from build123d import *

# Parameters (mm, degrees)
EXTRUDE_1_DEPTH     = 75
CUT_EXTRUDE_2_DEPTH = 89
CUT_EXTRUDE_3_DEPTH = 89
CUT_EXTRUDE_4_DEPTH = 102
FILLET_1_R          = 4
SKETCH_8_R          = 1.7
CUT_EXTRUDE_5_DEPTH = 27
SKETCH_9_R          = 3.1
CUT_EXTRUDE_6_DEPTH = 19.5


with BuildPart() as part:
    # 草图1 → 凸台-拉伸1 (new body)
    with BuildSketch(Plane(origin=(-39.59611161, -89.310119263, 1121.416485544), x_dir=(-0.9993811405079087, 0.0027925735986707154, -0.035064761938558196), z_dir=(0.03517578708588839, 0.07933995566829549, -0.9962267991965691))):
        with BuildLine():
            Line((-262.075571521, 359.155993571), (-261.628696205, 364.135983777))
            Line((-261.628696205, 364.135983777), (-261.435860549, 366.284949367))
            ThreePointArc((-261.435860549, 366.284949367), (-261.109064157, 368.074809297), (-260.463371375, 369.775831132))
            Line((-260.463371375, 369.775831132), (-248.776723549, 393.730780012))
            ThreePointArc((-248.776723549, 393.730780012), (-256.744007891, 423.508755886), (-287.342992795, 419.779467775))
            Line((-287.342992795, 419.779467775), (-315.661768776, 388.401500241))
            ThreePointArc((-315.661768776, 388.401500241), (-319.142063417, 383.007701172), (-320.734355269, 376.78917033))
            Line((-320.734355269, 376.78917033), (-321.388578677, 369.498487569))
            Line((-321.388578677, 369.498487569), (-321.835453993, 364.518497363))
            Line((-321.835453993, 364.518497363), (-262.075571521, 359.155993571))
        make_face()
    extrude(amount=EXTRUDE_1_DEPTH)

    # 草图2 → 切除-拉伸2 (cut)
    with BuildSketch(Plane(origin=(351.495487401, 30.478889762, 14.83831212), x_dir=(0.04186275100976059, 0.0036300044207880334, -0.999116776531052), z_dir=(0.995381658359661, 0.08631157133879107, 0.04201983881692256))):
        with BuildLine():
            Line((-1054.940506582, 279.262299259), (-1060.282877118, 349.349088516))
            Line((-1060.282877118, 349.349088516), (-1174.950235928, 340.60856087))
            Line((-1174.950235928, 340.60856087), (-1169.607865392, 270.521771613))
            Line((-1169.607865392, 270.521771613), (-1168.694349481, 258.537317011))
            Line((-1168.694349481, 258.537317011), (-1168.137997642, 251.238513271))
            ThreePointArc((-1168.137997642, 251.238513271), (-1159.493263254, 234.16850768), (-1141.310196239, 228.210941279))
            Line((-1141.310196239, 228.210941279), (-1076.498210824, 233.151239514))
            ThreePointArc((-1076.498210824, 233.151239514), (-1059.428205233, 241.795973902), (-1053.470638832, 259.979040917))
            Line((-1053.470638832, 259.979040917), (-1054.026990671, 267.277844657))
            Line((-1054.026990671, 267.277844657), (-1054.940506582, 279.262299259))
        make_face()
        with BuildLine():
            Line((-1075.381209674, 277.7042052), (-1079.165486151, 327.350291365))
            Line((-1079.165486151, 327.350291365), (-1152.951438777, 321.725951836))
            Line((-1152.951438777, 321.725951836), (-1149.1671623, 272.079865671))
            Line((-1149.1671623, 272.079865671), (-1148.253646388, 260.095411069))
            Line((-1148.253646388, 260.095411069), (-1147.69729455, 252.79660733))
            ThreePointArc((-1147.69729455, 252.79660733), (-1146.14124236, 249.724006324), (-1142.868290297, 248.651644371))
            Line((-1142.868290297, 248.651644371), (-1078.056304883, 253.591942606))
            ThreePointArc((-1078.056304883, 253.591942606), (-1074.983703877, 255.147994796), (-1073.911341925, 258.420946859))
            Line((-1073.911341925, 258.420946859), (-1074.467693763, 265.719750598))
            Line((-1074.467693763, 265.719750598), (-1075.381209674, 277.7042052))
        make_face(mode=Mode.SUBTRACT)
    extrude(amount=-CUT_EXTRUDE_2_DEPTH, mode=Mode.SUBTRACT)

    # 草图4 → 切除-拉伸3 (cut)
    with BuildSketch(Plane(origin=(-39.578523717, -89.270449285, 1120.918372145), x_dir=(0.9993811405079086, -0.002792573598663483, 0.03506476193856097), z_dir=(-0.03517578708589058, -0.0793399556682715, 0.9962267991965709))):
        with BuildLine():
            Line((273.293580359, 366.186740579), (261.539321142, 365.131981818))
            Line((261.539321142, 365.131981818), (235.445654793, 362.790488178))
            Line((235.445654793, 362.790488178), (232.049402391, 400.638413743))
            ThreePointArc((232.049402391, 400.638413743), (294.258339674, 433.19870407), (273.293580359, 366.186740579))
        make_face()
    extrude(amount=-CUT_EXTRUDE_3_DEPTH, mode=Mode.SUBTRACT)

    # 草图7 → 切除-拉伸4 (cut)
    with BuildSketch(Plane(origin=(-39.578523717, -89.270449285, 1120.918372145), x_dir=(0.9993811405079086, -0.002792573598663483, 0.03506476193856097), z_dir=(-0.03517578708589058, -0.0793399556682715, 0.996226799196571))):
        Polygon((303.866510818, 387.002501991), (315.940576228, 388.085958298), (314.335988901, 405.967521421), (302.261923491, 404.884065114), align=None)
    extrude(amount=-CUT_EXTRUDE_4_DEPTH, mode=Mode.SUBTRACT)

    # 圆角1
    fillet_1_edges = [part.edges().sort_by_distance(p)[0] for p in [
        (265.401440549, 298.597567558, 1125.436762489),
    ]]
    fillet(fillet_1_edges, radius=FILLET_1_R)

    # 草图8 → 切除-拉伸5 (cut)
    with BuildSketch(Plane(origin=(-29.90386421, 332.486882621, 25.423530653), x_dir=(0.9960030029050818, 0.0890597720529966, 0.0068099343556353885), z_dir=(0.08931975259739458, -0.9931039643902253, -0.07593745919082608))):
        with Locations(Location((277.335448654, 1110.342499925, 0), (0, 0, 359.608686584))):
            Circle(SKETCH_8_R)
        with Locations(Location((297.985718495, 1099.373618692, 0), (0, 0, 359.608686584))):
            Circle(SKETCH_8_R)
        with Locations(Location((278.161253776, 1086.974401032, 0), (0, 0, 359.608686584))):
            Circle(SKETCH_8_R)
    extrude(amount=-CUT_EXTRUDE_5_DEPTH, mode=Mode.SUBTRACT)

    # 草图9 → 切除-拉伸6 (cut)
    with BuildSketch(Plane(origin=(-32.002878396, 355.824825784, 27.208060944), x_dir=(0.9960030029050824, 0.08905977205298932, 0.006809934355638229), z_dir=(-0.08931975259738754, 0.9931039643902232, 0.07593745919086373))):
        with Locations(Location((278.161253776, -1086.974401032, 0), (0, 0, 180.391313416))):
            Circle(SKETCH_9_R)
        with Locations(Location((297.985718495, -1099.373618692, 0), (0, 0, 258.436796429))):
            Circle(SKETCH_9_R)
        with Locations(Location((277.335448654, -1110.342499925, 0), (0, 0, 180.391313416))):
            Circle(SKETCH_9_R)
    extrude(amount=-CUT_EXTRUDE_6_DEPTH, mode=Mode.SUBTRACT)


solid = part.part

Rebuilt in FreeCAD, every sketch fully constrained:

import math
import FreeCAD as App
import Part
import Sketcher


def edges_at(feature, points):
    """Names of the edges that pass closest to the given points."""
    edges = feature.Shape.Edges
    near = lambda p: min(range(len(edges)), key=lambda i: edges[i].distToShape(Part.Vertex(*p))[0])
    return sorted({f"Edge{near(p) + 1}" for p in points})


def add_polygon(sketch, points):
    """Adds a closed chain of lines whose ends are joined by coincident constraints."""
    first, n = sketch.GeometryCount, len(points)
    for a, b in zip(points, points[1:] + points[:1]):
        sketch.addGeometry(Part.LineSegment(App.Vector(*a, 0), App.Vector(*b, 0)), False)
    for i in range(n):
        sketch.addConstraint(Sketcher.Constraint("Coincident", first + i, 2, first + (i + 1) % n, 1))

doc = App.newDocument("Part")
body = doc.addObject("PartDesign::Body", "Body")

# Sketch on an angled plane
sketch1 = body.newObject("Sketcher::SketchObject", "Sketch")
sketch1.Placement = App.Placement(App.Vector(-39.596112, -89.310119, 1121.416486), App.Rotation(App.Vector(-0.999381141, 0.002792574, -0.035064762), App.Vector(0, 0.996843706, 0.079389087), App.Vector(0.035175787, 0.079339956, -0.996226799), "ZXY"))
sketch1.addGeometry([
    Part.LineSegment(App.Vector(-262.1, 359.2, 0), App.Vector(-261.6, 364.1, 0)),  # 0
    Part.LineSegment(App.Vector(-261.6, 364.1, 0), App.Vector(-261.4, 366.3, 0)),  # 1
    Part.ArcOfCircle(Part.Circle(App.Vector(-251.5, 365.4, 0), App.Vector(0, 0, 1), 10), math.radians(154), math.radians(175)),  # 2
    Part.LineSegment(App.Vector(-260.5, 369.8, 0), App.Vector(-248.8, 393.7, 0)),  # 3
    Part.ArcOfCircle(Part.Circle(App.Vector(-269.9, 404, 0), App.Vector(0, 0, 1), 23.5), math.radians(-26), math.radians(138)),  # 4
    Part.LineSegment(App.Vector(-287.3, 419.8, 0), App.Vector(-315.7, 388.4, 0)),  # 5
    Part.ArcOfCircle(Part.Circle(App.Vector(-300.8, 375, 0), App.Vector(0, 0, 1), 20), math.radians(138), math.radians(175)),  # 6
    Part.LineSegment(App.Vector(-320.7, 376.8, 0), App.Vector(-321.4, 369.5, 0)),  # 7
    Part.LineSegment(App.Vector(-321.4, 369.5, 0), App.Vector(-321.8, 364.5, 0)),  # 8
    Part.LineSegment(App.Vector(-321.8, 364.5, 0), App.Vector(-262.1, 359.2, 0)),  # 9
], False)
sketch1.addConstraint([
    Sketcher.Constraint("Coincident", 0, 2, 1, 1),
    Sketcher.Constraint("Tangent", 1, 2, 2, 2),
    Sketcher.Constraint("Tangent", 2, 1, 3, 1),
    Sketcher.Constraint("Tangent", 3, 2, 4, 1),
    Sketcher.Constraint("Tangent", 4, 2, 5, 1),
    Sketcher.Constraint("Tangent", 5, 2, 6, 1),
    Sketcher.Constraint("Tangent", 6, 2, 7, 1),
    Sketcher.Constraint("Coincident", 7, 2, 8, 1),
    Sketcher.Constraint("Coincident", 8, 2, 9, 1),
    Sketcher.Constraint("Coincident", 9, 2, 0, 1),
    Sketcher.Constraint("Parallel", 0, 1),
    Sketcher.Constraint("Parallel", 1, 7),
    Sketcher.Constraint("Parallel", 7, 8),
    Sketcher.Constraint("Perpendicular", 8, 9),
    Sketcher.Constraint("Equal", 0, 8),
    Sketcher.Constraint("Radius", 2, 10.0),
    Sketcher.Constraint("Radius", 6, 20.0),
    Sketcher.Constraint("Radius", 4, 23.5),
    Sketcher.Constraint("Distance", 0, 5.0),
    Sketcher.Constraint("Distance", 9, 60.0),
    Sketcher.Constraint("Distance", 1, 2.1576),
    Sketcher.Constraint("DistanceY", -1, 1, 2, 3, 365.391199),
    Sketcher.Constraint("DistanceY", -1, 1, 5, 2, 388.4015),
    Sketcher.Constraint("DistanceX", 6, 3, 0, 2, 39.185698),
    Sketcher.Constraint("DistanceY", 4, 3, 4, 2, 15.744802),
    Sketcher.Constraint("DistanceX", 6, 3, 4, 2, 13.471402),
    Sketcher.Constraint("DistanceX", 2, 3, -1, 1, 251.47588),
])
pad1 = body.newObject("PartDesign::Pad", "Pad")
pad1.Profile = sketch1
pad1.Length = 75

# Sketch on an angled plane
sketch2 = body.newObject("Sketcher::SketchObject", "Sketch001")
sketch2.Placement = App.Placement(App.Vector(351.495487, 30.47889, 14.838312), App.Rotation(App.Vector(0.041862751, 0.003630004, -0.999116777), App.Vector(-0.086387871, 0.99626158, 0), App.Vector(0.995381658, 0.086311571, 0.042019839), "ZXY"))
sketch2.addGeometry([
    Part.LineSegment(App.Vector(-1054.9, 279.3, 0), App.Vector(-1060.3, 349.3, 0)),  # 0
    Part.LineSegment(App.Vector(-1060.3, 349.3, 0), App.Vector(-1175, 340.6, 0)),  # 1
    Part.LineSegment(App.Vector(-1175, 340.6, 0), App.Vector(-1169.6, 270.5, 0)),  # 2
    Part.LineSegment(App.Vector(-1169.6, 270.5, 0), App.Vector(-1168.7, 258.5, 0)),  # 3
    Part.LineSegment(App.Vector(-1168.7, 258.5, 0), App.Vector(-1168.1, 251.2, 0)),  # 4
    Part.ArcOfCircle(Part.Circle(App.Vector(-1143.2, 253.1, 0), App.Vector(0, 0, 1), 25), math.radians(-176), math.radians(-86)),  # 5
    Part.LineSegment(App.Vector(-1141.3, 228.2, 0), App.Vector(-1076.5, 233.2, 0)),  # 6
    Part.ArcOfCircle(Part.Circle(App.Vector(-1078.4, 258.1, 0), App.Vector(0, 0, 1), 25), math.radians(-86), math.radians(4)),  # 7
    Part.LineSegment(App.Vector(-1053.5, 260, 0), App.Vector(-1054, 267.3, 0)),  # 8
    Part.LineSegment(App.Vector(-1054, 267.3, 0), App.Vector(-1054.9, 279.3, 0)),  # 9
    Part.LineSegment(App.Vector(-1079.2, 327.4, 0), App.Vector(-1075.4, 277.7, 0)),  # 10
    Part.LineSegment(App.Vector(-1075.4, 277.7, 0), App.Vector(-1074.5, 265.7, 0)),  # 11
    Part.LineSegment(App.Vector(-1074.5, 265.7, 0), App.Vector(-1073.9, 258.4, 0)),  # 12
    Part.ArcOfCircle(Part.Circle(App.Vector(-1078.4, 258.1, 0), App.Vector(0, 0, 1), 4.5), math.radians(-86), math.radians(4)),  # 13
    Part.LineSegment(App.Vector(-1078.1, 253.6, 0), App.Vector(-1142.9, 248.7, 0)),  # 14
    Part.ArcOfCircle(Part.Circle(App.Vector(-1143.2, 253.1, 0), App.Vector(0, 0, 1), 4.5), math.radians(-176), math.radians(-86)),  # 15
    Part.LineSegment(App.Vector(-1147.7, 252.8, 0), App.Vector(-1148.3, 260.1, 0)),  # 16
    Part.LineSegment(App.Vector(-1148.3, 260.1, 0), App.Vector(-1149.2, 272.1, 0)),  # 17
    Part.LineSegment(App.Vector(-1149.2, 272.1, 0), App.Vector(-1153, 321.7, 0)),  # 18
    Part.LineSegment(App.Vector(-1153, 321.7, 0), App.Vector(-1079.2, 327.4, 0)),  # 19
], False)
sketch2.addConstraint([
    Sketcher.Constraint("Coincident", 0, 2, 1, 1),
    Sketcher.Constraint("Coincident", 1, 2, 2, 1),
    Sketcher.Constraint("Coincident", 2, 2, 3, 1),
    Sketcher.Constraint("Coincident", 3, 2, 4, 1),
    Sketcher.Constraint("Tangent", 4, 2, 5, 1),
    Sketcher.Constraint("Tangent", 5, 2, 6, 1),
    Sketcher.Constraint("Tangent", 6, 2, 7, 1),
    Sketcher.Constraint("Tangent", 7, 2, 8, 1),
    Sketcher.Constraint("Coincident", 8, 2, 9, 1),
    Sketcher.Constraint("Coincident", 9, 2, 0, 1),
    Sketcher.Constraint("Coincident", 10, 2, 11, 1),
    Sketcher.Constraint("Coincident", 11, 2, 12, 1),
    Sketcher.Constraint("Tangent", 12, 2, 13, 2),
    Sketcher.Constraint("Tangent", 13, 1, 14, 1),
    Sketcher.Constraint("Tangent", 14, 2, 15, 2),
    Sketcher.Constraint("Tangent", 15, 1, 16, 1),
    Sketcher.Constraint("Coincident", 16, 2, 17, 1),
    Sketcher.Constraint("Coincident", 17, 2, 18, 1),
    Sketcher.Constraint("Coincident", 18, 2, 19, 1),
    Sketcher.Constraint("Coincident", 19, 2, 10, 1),
    Sketcher.Constraint("Coincident", 13, 3, 7, 3),
    Sketcher.Constraint("Coincident", 15, 3, 5, 3),
    Sketcher.Constraint("Equal", 5, 7),
    Sketcher.Constraint("Equal", 13, 15),
    Sketcher.Constraint("Perpendicular", 0, 1),
    Sketcher.Constraint("Perpendicular", 1, 2),
    Sketcher.Constraint("Parallel", 2, 3),
    Sketcher.Constraint("Parallel", 3, 4),
    Sketcher.Constraint("Perpendicular", 4, 6),
    Sketcher.Constraint("Perpendicular", 6, 8),
    Sketcher.Constraint("Parallel", 8, 9),
    Sketcher.Constraint("Parallel", 9, 10),
    Sketcher.Constraint("Parallel", 10, 11),
    Sketcher.Constraint("Parallel", 11, 12),
    Sketcher.Constraint("Perpendicular", 14, 16),
    Sketcher.Constraint("Parallel", 16, 17),
    Sketcher.Constraint("Parallel", 17, 18),
    Sketcher.Constraint("Perpendicular", 18, 19),
    Sketcher.Constraint("Equal", 0, 2),
    Sketcher.Constraint("Equal", 4, 8),
    Sketcher.Constraint("Equal", 9, 11),
    Sketcher.Constraint("Equal", 8, 12),
    Sketcher.Constraint("Equal", 12, 16),
    Sketcher.Constraint("Equal", 11, 17),
    Sketcher.Constraint("Radius", 5, 25.0),
    Sketcher.Constraint("Radius", 13, 4.5),
    Sketcher.Constraint("Distance", 1, 115.0),
    Sketcher.Constraint("DistanceX", 4, 2, -1, 1, 1168.137999),
    Sketcher.Constraint("DistanceY", -1, 1, 9, 2, 279.262299),
    Sketcher.Constraint("DistanceY", 5, 3, 7, 3, 4.940298),
    Sketcher.Constraint("Distance", 3, 12.019221),
    Sketcher.Constraint("DistanceY", -1, 1, 5, 3, 253.138628),
    Sketcher.Constraint("DistanceX", 0, 2, -1, 1, 1060.282878),
    Sketcher.Constraint("DistanceX", 18, 2, -1, 1, 1152.95144),
])
pocket1 = body.newObject("PartDesign::Pocket", "Pocket")
pocket1.Profile = sketch2
pocket1.Length = 89

# Sketch on an angled plane
sketch3 = body.newObject("Sketcher::SketchObject", "Sketch002")
sketch3.Placement = App.Placement(App.Vector(-39.578524, -89.270449, 1120.918372), App.Rotation(App.Vector(0.999381141, -0.002792574, 0.035064762), App.Vector(0, 0.996843706, 0.079389087), App.Vector(-0.035175787, -0.079339956, 0.996226799), "ZXY"))
sketch3.addGeometry([
    Part.LineSegment(App.Vector(262, 365, 0), App.Vector(273, 366, 0)),
    Part.ArcOfCircle(Part.Circle(App.Vector(270, 404, 0), App.Vector(0, 0, 1), 38), math.radians(-85), math.radians(185)),
    Part.LineSegment(App.Vector(232, 401, 0), App.Vector(235, 363, 0)),
    Part.LineSegment(App.Vector(235, 363, 0), App.Vector(262, 365, 0)),
], False)
sketch3.addConstraint([
    Sketcher.Constraint("Tangent", 0, 2, 1, 1),
    Sketcher.Constraint("Tangent", 1, 2, 2, 1),
    Sketcher.Constraint("Coincident", 2, 2, 3, 1),
    Sketcher.Constraint("Coincident", 3, 2, 0, 1),
    Sketcher.Constraint("Perpendicular", 0, 2),
    Sketcher.Constraint("Perpendicular", 2, 3),
    Sketcher.Constraint("Radius", 1, 38.0),
    Sketcher.Constraint("Distance", 0, 11.801488),
    Sketcher.Constraint("DistanceX", -1, 1, 1, 3, 269.897328),
    Sketcher.Constraint("DistanceX", -1, 1, 0, 2, 273.293581),
    Sketcher.Constraint("DistanceY", -1, 1, 0, 2, 366.186741),
])
pocket2 = body.newObject("PartDesign::Pocket", "Pocket001")
pocket2.Profile = sketch3
pocket2.Length = 89

# Sketch on an angled plane
sketch4 = body.newObject("Sketcher::SketchObject", "Sketch003")
sketch4.Placement = App.Placement(App.Vector(-39.578524, -89.270449, 1120.918372), App.Rotation(App.Vector(0.999381141, -0.002792574, 0.035064762), App.Vector(0, 0.996843706, 0.079389087), App.Vector(-0.035175787, -0.079339956, 0.996226799), "ZXY"))
add_polygon(sketch4, [(304, 387), (316, 388), (314, 406), (302, 405)])  # lines 0-3
sketch4.addConstraint([
    Sketcher.Constraint("Perpendicular", 0, 1),
    Sketcher.Constraint("Perpendicular", 1, 2),
    Sketcher.Constraint("Perpendicular", 2, 3),
    Sketcher.Constraint("Distance", 0, 12.122579),
    Sketcher.Constraint("Distance", 1, 17.953412),
    Sketcher.Constraint("DistanceY", -1, 1, 0, 2, 388.085959),
    Sketcher.Constraint("DistanceX", -1, 1, 1, 2, 314.335989),
    Sketcher.Constraint("DistanceY", -1, 1, 1, 2, 405.967522),
])
pocket3 = body.newObject("PartDesign::Pocket", "Pocket002")
pocket3.Profile = sketch4
pocket3.Length = 102
doc.recompute()

fillet = body.newObject("PartDesign::Fillet", "Fillet")
fillet.Base = (pocket3, edges_at(pocket3, [(265.401, 298.598, 1125.437)]))
fillet.Radius = 4

# Sketch on an angled plane
sketch5 = body.newObject("Sketcher::SketchObject", "Sketch004")
sketch5.Placement = App.Placement(App.Vector(-29.903864, 332.486883, 25.423531), App.Rotation(App.Vector(0.996003003, 0.089059772, 0.006809934), App.Vector(0, -0.076242199, 0.997089327), App.Vector(0.089319753, -0.993103964, -0.075937459), "ZXY"))
sketch5.addGeometry([
    Part.Circle(App.Vector(277.3, 1110.3, 0), App.Vector(0, 0, 1), 1.7),
    Part.Circle(App.Vector(298, 1099.4, 0), App.Vector(0, 0, 1), 1.7),
    Part.Circle(App.Vector(278.2, 1087, 0), App.Vector(0, 0, 1), 1.7),
], False)
sketch5.addConstraint([
    Sketcher.Constraint("Equal", 0, 1),
    Sketcher.Constraint("Equal", 1, 2),
    Sketcher.Constraint("Diameter", 0, 3.4),
    Sketcher.Constraint("DistanceY", -1, 1, 0, 3, 1110.342499),
    Sketcher.Constraint("DistanceY", -1, 1, 2, 3, 1086.9744),
    Sketcher.Constraint("DistanceX", -1, 1, 0, 3, 277.335449),
    Sketcher.Constraint("DistanceX", -1, 1, 1, 3, 297.985719),
    Sketcher.Constraint("DistanceY", -1, 1, 1, 3, 1099.373618),
    Sketcher.Constraint("DistanceX", -1, 1, 2, 3, 278.161254),
])
pocket4 = body.newObject("PartDesign::Pocket", "Pocket003")
pocket4.Profile = sketch5
pocket4.Length = 27

# Sketch on an angled plane
sketch6 = body.newObject("Sketcher::SketchObject", "Sketch005")
sketch6.Placement = App.Placement(App.Vector(-32.002878, 355.824826, 27.208061), App.Rotation(App.Vector(0.996003003, 0.089059772, 0.006809934), App.Vector(0, 0.076242199, -0.997089327), App.Vector(-0.089319753, 0.993103964, 0.075937459), "ZXY"))
sketch6.addGeometry([
    Part.Circle(App.Vector(278.2, -1087, 0), App.Vector(0, 0, 1), 3.1),
    Part.Circle(App.Vector(298, -1099.4, 0), App.Vector(0, 0, 1), 3.1),
    Part.Circle(App.Vector(277.3, -1110.3, 0), App.Vector(0, 0, 1), 3.1),
], False)
sketch6.addConstraint([
    Sketcher.Constraint("Equal", 0, 1),
    Sketcher.Constraint("Equal", 1, 2),
    Sketcher.Constraint("Diameter", 0, 6.2),
    Sketcher.Constraint("DistanceY", 0, 3, -1, 1, 1086.9744),
    Sketcher.Constraint("DistanceY", 2, 3, -1, 1, 1110.342499),
    Sketcher.Constraint("DistanceX", -1, 1, 1, 3, 297.985719),
    Sketcher.Constraint("DistanceY", 1, 3, -1, 1, 1099.373618),
    Sketcher.Constraint("DistanceX", -1, 1, 2, 3, 277.335449),
    Sketcher.Constraint("DistanceX", -1, 1, 0, 3, 278.161254),
])
pocket5 = body.newObject("PartDesign::Pocket", "Pocket004")
pocket5.Profile = sketch6
pocket5.Length = 19.5

doc.recompute()
